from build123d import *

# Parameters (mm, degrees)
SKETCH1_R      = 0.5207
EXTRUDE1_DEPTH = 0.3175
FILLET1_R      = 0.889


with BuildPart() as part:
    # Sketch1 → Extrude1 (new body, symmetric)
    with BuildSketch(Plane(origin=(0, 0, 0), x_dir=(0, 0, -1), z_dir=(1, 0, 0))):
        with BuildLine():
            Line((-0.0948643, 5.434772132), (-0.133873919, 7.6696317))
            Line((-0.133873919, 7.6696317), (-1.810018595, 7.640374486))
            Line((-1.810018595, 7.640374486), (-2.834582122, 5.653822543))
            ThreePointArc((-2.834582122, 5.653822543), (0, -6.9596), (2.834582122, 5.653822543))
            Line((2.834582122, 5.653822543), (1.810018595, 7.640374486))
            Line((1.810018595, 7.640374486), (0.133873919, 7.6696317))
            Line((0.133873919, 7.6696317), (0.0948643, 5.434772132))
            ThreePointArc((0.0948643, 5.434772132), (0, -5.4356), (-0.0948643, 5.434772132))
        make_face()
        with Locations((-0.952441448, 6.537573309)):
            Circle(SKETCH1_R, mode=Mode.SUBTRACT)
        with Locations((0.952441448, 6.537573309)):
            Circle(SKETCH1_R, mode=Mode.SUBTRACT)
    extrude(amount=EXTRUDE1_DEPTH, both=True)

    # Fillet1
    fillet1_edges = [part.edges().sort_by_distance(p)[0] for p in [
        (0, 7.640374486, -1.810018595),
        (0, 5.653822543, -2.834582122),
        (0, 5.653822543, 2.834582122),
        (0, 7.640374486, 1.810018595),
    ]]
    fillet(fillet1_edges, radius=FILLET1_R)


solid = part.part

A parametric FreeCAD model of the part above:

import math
import FreeCAD as App
import Part
import Sketcher
from FreeCAD import Vector
Q = App.Units.Quantity


def edges_at(feature, points):
    """Names of the edges that pass closest to the given points."""
    edges = feature.Shape.Edges
    near = lambda p: min(range(len(edges)), key=lambda i: edges[i].distToShape(Part.Vertex(*p))[0])
    return sorted({f"Edge{near(p) + 1}" for p in points})

doc = App.newDocument("Part")
params = doc.addObject("Spreadsheet::Sheet", "Params")
for row, (alias, value) in enumerate([
    ("sketch1_diameter", "0.041 in"),
    ("sketch1_radius", "0.214 in"),
    ("sketch1_length", "0.088 in"),
    ("sketch1_length2", "0.066 in"),
    ("pad1_length", "0.025 in"),
    ("fillet_radius", "0.035 in"),
], start=1):
    params.set(f"A{row}", alias)
    params.set(f"B{row}", "=" + value)
    params.setAlias(f"B{row}", alias)

body = doc.addObject("PartDesign::Body", "Body")

# Sketch on YZ plane
sketch1 = doc.addObject("Sketcher::SketchObject", "Sketch")
body.addObject(sketch1)
sketch1.AttachmentSupport = (doc.YZ_Plane, [""])
sketch1.MapMode = "FlatFace"
sketch1.addGeometry([
    Part.LineSegment(Vector(5.43, 0.09, 0), Vector(7.67, 0.13, 0)),  # 0
    Part.LineSegment(Vector(7.67, 0.13, 0), Vector(7.64, 1.81, 0)),  # 1
    Part.LineSegment(Vector(7.64, 1.81, 0), Vector(5.65, 2.83, 0)),  # 2
    Part.ArcOfCircle(Part.Circle(Vector(-0.33, 0, 0), Vector(0, 0, 1), 6.63), math.radians(25), math.radians(335)),  # 3
    Part.LineSegment(Vector(5.65, -2.83, 0), Vector(7.64, -1.81, 0)),  # 4
    Part.LineSegment(Vector(7.64, -1.81, 0), Vector(7.67, -0.13, 0)),  # 5
    Part.LineSegment(Vector(7.67, -0.13, 0), Vector(5.43, -0.09, 0)),  # 6
    Part.ArcOfCircle(Part.Circle(Vector(0, 0, 0), Vector(0, 0, 1), 5.44), math.radians(1), math.radians(359)),  # 7
    Part.Circle(Vector(6.54, 0.95, 0), Vector(0, 0, 1), 0.52),  # 8
    Part.Circle(Vector(6.54, -0.95, 0), Vector(0, 0, 1), 0.52),  # 9
], False)
sketch1.addConstraint([
    Sketcher.Constraint("Coincident", 0, 2, 1, 1),
    Sketcher.Constraint("Coincident", 1, 2, 2, 1),
    Sketcher.Constraint("Coincident", 2, 2, 3, 1),
    Sketcher.Constraint("Coincident", 3, 2, 4, 1),
    Sketcher.Constraint("Coincident", 4, 2, 5, 1),
    Sketcher.Constraint("Coincident", 5, 2, 6, 1),
    Sketcher.Constraint("Coincident", 6, 2, 7, 2),
    Sketcher.Constraint("Coincident", 7, 1, 0, 1),
    Sketcher.Constraint("Coincident", 7, 3, -1, 1),
    Sketcher.Constraint("Equal", 8, 9),
    Sketcher.Constraint("Symmetric", 8, 3, 9, 3, -1),
    Sketcher.Constraint("Symmetric", 2, 2, 3, 2, -1),
    Sketcher.Constraint("Symmetric", 1, 2, 4, 2, -1),
    Sketcher.Constraint("Symmetric", 0, 2, 5, 2, -1),
    Sketcher.Constraint("Perpendicular", 0, 1),
    Sketcher.Constraint("Perpendicular", 5, 6),
    Sketcher.Constraint("Equal", 0, 2),
    Sketcher.Constraint("Diameter", 8, Q("0.041 in")),
    Sketcher.Constraint("Angle", 0, Q("1 deg")),
    Sketcher.Constraint("Radius", 7, Q("0.214 in")),
    Sketcher.Constraint("Distance", 0, Q("0.088 in")),
    Sketcher.Constraint("Distance", 1, Q("0.066 in")),
    Sketcher.Constraint("Radius", 3, Q("6.625215 mm")),
    Sketcher.Constraint("DistanceY", 8, 3, 2, 2, Q("0.0741 in")),
    Sketcher.Constraint("DistanceX", 8, 3, 1, 2, Q("1.102801 mm")),
    Sketcher.Constraint("DistanceY", 3, 2, 1, 2, Q("4.644601 mm")),
    Sketcher.Constraint("DistanceY", -1, 1, 8, 3, Q("0.952441 mm")),
])
sketch1.setExpression("Constraints[17]", "Params.sketch1_diameter")
sketch1.setExpression("Constraints[19]", "Params.sketch1_radius")
sketch1.setExpression("Constraints[20]", "Params.sketch1_length")
sketch1.setExpression("Constraints[21]", "Params.sketch1_length2")
pad1 = doc.addObject("PartDesign::Pad", "Pad")
body.addObject(pad1)
pad1.Profile = sketch1
pad1.setExpression("Length", "Params.pad1_length")
pad1.Midplane = True
doc.recompute()

fillet = doc.addObject("PartDesign::Fillet", "Fillet")
body.addObject(fillet)
fillet.Base = (pad1, edges_at(pad1, [
    (0, 7.64, -1.81),
    (0, 5.654, -2.835),
    (0, 5.654, 2.835),
    (0, 7.64, 1.81),
]))
fillet.setExpression("Radius", "Params.fillet_radius")

doc.recompute()
